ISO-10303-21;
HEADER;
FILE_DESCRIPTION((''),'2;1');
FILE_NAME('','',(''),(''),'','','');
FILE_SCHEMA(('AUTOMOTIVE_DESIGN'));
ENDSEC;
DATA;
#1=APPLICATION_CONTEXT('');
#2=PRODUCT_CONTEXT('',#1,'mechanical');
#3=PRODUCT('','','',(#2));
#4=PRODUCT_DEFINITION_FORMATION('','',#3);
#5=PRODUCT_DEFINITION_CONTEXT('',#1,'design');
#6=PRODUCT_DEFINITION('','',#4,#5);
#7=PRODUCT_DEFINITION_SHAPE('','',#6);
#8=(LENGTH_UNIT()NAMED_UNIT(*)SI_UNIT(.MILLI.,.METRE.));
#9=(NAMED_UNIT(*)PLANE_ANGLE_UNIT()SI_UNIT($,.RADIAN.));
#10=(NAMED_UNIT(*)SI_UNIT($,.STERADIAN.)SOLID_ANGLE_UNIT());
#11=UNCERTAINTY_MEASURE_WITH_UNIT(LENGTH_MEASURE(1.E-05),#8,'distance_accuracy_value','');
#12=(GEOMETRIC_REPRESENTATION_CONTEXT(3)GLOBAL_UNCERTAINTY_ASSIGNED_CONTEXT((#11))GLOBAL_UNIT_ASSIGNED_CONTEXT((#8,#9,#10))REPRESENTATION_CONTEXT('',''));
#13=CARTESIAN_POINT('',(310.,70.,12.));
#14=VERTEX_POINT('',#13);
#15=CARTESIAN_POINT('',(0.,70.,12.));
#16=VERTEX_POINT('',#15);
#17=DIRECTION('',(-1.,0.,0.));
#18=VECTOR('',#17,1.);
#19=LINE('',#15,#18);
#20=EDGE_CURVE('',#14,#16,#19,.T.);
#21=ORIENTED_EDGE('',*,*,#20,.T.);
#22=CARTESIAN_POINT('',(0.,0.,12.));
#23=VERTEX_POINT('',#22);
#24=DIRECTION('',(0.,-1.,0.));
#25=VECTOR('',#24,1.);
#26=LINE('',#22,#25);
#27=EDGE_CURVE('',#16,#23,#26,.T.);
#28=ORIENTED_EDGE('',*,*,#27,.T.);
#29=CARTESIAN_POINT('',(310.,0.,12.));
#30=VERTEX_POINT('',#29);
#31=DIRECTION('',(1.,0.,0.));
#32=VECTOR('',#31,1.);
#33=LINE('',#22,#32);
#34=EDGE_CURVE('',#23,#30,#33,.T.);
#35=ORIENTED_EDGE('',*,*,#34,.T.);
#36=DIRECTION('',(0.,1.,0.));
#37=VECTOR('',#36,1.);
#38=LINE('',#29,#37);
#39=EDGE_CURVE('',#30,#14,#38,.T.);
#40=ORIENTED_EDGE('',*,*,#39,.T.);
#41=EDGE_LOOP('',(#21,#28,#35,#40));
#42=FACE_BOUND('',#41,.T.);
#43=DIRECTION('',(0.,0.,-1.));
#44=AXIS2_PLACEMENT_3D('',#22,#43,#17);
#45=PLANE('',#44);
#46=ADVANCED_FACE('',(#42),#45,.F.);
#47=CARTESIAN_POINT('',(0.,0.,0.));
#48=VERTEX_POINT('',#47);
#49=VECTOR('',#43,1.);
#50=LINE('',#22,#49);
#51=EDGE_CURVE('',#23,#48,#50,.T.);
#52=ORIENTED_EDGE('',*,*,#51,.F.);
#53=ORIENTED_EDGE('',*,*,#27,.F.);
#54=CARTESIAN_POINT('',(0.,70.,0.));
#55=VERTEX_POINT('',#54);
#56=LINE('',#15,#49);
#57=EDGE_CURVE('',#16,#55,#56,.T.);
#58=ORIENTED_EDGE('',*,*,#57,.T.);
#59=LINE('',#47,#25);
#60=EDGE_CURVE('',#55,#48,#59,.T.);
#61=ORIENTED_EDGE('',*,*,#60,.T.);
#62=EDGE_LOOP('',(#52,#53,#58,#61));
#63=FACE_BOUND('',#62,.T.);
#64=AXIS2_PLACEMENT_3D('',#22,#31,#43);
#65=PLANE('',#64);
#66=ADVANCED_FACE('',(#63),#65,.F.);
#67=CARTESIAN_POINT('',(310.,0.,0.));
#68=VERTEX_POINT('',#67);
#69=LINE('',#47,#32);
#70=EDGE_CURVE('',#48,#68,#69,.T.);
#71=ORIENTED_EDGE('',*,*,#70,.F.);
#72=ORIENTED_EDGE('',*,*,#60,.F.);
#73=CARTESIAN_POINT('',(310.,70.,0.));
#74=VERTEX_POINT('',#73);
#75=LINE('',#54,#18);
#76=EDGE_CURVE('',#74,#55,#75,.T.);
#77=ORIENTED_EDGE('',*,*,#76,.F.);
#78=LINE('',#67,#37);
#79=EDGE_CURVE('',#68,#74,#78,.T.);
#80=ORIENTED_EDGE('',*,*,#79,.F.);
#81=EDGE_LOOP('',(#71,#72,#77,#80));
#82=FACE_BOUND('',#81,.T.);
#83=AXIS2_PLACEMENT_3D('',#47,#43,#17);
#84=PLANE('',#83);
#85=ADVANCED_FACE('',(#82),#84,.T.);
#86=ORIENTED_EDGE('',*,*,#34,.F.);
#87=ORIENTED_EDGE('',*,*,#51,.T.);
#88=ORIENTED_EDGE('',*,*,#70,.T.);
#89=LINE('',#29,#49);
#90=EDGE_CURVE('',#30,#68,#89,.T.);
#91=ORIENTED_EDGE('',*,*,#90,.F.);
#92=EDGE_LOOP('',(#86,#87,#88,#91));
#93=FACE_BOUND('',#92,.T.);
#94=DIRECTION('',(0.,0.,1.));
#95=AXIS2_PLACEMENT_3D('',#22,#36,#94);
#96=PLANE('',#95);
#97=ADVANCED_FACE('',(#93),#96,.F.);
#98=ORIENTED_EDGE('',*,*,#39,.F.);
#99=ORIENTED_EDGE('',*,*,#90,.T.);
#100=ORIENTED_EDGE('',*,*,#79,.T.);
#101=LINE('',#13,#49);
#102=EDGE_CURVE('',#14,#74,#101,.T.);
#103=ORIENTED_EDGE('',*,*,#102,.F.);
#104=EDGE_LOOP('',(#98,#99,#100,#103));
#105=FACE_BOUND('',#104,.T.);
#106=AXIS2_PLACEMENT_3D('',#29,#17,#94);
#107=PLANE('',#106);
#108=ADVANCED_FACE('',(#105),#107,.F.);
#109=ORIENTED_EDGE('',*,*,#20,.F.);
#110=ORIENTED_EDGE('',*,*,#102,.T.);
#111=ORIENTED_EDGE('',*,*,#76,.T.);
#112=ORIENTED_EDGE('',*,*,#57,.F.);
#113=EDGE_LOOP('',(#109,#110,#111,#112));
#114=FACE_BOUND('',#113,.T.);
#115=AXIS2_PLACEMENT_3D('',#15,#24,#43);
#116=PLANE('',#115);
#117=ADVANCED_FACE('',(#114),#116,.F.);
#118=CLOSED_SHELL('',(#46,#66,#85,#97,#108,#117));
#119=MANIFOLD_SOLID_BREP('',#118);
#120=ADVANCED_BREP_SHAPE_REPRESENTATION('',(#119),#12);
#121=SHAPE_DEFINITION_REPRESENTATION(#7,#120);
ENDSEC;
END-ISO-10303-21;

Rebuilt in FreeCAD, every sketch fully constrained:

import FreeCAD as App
import Part
import Sketcher
from FreeCAD import Vector
Q = App.Units.Quantity

doc = App.newDocument("Part")
body = doc.addObject("PartDesign::Body", "Body")

# Sketch on XY plane
sketch1 = body.newObject("Sketcher::SketchObject", "Sketch")
sketch1.AttachmentSupport = (doc.getObject("XY_Plane"), [""])
sketch1.MapMode = "FlatFace"
sketch1.addGeometry(Part.LineSegment(Vector(0, 70, 0), Vector(0, 0, 0)), False)
sketch1.addGeometry(Part.LineSegment(Vector(0, 0, 0), Vector(310, 0, 0)), False)
sketch1.addGeometry(Part.LineSegment(Vector(310, 0, 0), Vector(310, 70, 0)), False)
sketch1.addGeometry(Part.LineSegment(Vector(310, 70, 0), Vector(0, 70, 0)), False)
sketch1.addConstraint(Sketcher.Constraint("Coincident", 0, 2, 1, 1))
sketch1.addConstraint(Sketcher.Constraint("Coincident", 1, 2, 2, 1))
sketch1.addConstraint(Sketcher.Constraint("Coincident", 2, 2, 3, 1))
sketch1.addConstraint(Sketcher.Constraint("Coincident", 3, 2, 0, 1))
sketch1.addConstraint(Sketcher.Constraint("Vertical", 0))
sketch1.addConstraint(Sketcher.Constraint("Horizontal", 1))
sketch1.addConstraint(Sketcher.Constraint("Vertical", 2))
sketch1.addConstraint(Sketcher.Constraint("Horizontal", 3))
sketch1.addConstraint(Sketcher.Constraint("Coincident", 0, 2, -1, 1))
sketch1.addConstraint(Sketcher.Constraint("DistanceX", 1, 1, 1, 2, Q("310 mm")))
sketch1.addConstraint(Sketcher.Constraint("DistanceY", 0, 2, 0, 1, Q("70 mm")))
pad1 = body.newObject("PartDesign::Pad", "Pad")
pad1.Profile = sketch1
pad1.Length = 12

doc.recompute()
